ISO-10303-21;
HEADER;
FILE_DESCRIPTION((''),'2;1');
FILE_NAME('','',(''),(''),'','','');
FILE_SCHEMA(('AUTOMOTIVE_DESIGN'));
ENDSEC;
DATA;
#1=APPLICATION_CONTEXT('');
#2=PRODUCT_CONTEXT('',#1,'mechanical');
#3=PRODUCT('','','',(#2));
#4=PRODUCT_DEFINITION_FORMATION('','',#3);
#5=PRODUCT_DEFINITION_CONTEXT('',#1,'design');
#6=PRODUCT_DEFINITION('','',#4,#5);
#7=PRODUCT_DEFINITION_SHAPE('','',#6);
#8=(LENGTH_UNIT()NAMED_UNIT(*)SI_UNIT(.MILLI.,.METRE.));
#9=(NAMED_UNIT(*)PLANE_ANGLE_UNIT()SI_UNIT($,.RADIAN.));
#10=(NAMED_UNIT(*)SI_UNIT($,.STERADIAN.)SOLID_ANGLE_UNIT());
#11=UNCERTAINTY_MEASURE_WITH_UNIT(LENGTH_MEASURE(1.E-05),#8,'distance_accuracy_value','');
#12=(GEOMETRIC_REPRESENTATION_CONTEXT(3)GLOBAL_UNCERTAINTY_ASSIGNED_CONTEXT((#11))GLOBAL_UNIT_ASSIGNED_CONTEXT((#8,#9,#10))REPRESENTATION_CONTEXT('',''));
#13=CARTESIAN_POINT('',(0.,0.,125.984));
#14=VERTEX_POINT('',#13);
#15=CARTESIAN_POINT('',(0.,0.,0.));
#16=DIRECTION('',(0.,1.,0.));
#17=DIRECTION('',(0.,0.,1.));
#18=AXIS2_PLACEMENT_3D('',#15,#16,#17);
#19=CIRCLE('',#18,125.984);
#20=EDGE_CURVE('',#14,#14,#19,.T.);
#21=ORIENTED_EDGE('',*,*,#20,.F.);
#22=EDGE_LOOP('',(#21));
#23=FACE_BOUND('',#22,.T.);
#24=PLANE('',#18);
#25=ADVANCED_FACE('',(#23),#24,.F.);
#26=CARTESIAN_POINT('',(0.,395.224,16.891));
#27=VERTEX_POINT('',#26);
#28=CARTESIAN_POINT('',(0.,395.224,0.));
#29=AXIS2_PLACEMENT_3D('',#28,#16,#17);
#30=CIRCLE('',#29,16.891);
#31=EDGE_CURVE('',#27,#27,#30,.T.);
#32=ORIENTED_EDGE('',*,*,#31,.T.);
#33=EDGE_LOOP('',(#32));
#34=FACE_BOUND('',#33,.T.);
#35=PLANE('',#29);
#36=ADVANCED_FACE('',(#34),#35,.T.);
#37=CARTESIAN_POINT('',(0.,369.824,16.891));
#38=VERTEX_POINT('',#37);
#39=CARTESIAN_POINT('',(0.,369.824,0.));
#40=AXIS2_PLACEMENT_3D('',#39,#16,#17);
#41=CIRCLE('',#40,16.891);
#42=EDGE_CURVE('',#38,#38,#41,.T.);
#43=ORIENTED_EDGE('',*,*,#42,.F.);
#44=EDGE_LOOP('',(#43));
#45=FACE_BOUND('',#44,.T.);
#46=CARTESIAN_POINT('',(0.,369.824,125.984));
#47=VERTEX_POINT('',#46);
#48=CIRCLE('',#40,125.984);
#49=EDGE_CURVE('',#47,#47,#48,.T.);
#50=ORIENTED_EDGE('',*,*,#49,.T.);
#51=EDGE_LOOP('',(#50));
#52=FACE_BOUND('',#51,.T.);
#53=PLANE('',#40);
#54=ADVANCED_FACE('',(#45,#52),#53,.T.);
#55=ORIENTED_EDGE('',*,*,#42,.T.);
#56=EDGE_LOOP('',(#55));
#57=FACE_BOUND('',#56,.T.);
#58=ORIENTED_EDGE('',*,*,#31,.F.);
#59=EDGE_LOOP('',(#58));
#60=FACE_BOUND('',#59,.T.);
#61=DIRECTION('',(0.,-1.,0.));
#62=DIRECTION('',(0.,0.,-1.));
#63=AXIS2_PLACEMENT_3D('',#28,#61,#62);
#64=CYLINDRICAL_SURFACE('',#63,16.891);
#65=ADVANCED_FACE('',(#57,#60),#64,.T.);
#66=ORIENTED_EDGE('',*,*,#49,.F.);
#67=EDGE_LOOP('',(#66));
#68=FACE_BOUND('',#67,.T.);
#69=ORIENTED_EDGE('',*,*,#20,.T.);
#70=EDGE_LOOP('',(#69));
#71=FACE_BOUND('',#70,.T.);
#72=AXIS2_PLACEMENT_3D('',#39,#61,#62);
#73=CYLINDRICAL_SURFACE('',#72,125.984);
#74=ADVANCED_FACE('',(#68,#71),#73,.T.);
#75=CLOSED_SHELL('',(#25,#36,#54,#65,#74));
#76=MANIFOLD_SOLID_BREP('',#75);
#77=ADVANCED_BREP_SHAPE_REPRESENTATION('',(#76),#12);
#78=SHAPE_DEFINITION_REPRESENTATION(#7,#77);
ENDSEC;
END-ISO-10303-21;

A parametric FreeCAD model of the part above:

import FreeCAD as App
import Part
import Sketcher
Q = App.Units.Quantity

doc = App.newDocument("Part")
body = doc.addObject("PartDesign::Body", "Body")

sketch1 = body.newObject("Sketcher::SketchObject", "Sketch")
sketch1.AttachmentSupport = (doc.getObject("XZ_Plane"), [""])
sketch1.MapMode = "FlatFace"
sketch1.addGeometry(Part.Circle(App.Vector(0, 0, 0), App.Vector(0, 0, 1), 125.984), False)
sketch1.addConstraint(Sketcher.Constraint("Coincident", 0, 3, -1, 1))
sketch1.addConstraint(Sketcher.Constraint("Diameter", 0, Q("9.92 in")))
pad1 = body.newObject("PartDesign::Pad", "Pad")
pad1.Profile = sketch1
pad1.Length = Q("14.56 in")
pad1.Reversed = True

sketch2 = body.newObject("Sketcher::SketchObject", "Sketch001")
sketch2.AttachmentSupport = (doc.getObject("XZ_Plane"), [""])
sketch2.MapMode = "FlatFace"
sketch2.AttachmentOffset = App.Placement(App.Vector(0, 0, -14.56 * 25.4), App.Rotation())
sketch2.addGeometry(Part.Circle(App.Vector(0, 0, 0), App.Vector(0, 0, 1), 16.891), False)
sketch2.addConstraint(Sketcher.Constraint("Coincident", 0, 3, -1, 1))
sketch2.addConstraint(Sketcher.Constraint("Diameter", 0, Q("1.33 in")))
pad2 = body.newObject("PartDesign::Pad", "Pad001")
pad2.Profile = sketch2
pad2.Length = Q("1 in")
pad2.Reversed = True

doc.recompute()
